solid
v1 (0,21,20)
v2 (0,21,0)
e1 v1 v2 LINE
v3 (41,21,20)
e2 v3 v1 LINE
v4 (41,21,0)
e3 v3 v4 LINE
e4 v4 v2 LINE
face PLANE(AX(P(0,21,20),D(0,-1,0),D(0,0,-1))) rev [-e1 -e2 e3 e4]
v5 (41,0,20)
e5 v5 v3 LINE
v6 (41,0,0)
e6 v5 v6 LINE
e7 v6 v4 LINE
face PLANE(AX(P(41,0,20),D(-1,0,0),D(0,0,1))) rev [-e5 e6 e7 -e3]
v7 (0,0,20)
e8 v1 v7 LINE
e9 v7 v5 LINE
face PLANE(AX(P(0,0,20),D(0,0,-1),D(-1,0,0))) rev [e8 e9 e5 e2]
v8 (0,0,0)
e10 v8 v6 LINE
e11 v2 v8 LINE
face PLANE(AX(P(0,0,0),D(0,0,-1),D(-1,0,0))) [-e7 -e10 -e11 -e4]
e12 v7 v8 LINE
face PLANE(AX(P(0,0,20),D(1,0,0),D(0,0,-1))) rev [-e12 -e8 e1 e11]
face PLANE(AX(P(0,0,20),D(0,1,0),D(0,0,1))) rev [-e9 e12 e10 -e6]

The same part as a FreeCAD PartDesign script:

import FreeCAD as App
import Part
import Sketcher
from FreeCAD import Vector
Q = App.Units.Quantity

doc = App.newDocument("Part")
body = doc.addObject("PartDesign::Body", "Body")

# Sketch on XY plane
sketch1 = doc.addObject("Sketcher::SketchObject", "Sketch")
body.addObject(sketch1)
sketch1.AttachmentSupport = (doc.XY_Plane, [""])
sketch1.MapMode = "FlatFace"
sketch1.addGeometry([
    Part.LineSegment(Vector(0, 21, 0), Vector(0, 0, 0)),
    Part.LineSegment(Vector(0, 0, 0), Vector(41, 0, 0)),
    Part.LineSegment(Vector(41, 0, 0), Vector(41, 21, 0)),
    Part.LineSegment(Vector(41, 21, 0), Vector(0, 21, 0)),
], False)
sketch1.addConstraint([
    Sketcher.Constraint("Coincident", 0, 2, 1, 1),
    Sketcher.Constraint("Coincident", 1, 2, 2, 1),
    Sketcher.Constraint("Coincident", 2, 2, 3, 1),
    Sketcher.Constraint("Coincident", 3, 2, 0, 1),
    Sketcher.Constraint("Vertical", 0),
    Sketcher.Constraint("Horizontal", 1),
    Sketcher.Constraint("Vertical", 2),
    Sketcher.Constraint("Horizontal", 3),
    Sketcher.Constraint("Coincident", 0, 2, -1, 1),
    Sketcher.Constraint("DistanceX", 1, 1, 1, 2, Q("41 mm")),
    Sketcher.Constraint("DistanceY", 0, 2, 0, 1, Q("21 mm")),
])
pad1 = doc.addObject("PartDesign::Pad", "Pad")
body.addObject(pad1)
pad1.Profile = sketch1
pad1.Length = 20

doc.recompute()
